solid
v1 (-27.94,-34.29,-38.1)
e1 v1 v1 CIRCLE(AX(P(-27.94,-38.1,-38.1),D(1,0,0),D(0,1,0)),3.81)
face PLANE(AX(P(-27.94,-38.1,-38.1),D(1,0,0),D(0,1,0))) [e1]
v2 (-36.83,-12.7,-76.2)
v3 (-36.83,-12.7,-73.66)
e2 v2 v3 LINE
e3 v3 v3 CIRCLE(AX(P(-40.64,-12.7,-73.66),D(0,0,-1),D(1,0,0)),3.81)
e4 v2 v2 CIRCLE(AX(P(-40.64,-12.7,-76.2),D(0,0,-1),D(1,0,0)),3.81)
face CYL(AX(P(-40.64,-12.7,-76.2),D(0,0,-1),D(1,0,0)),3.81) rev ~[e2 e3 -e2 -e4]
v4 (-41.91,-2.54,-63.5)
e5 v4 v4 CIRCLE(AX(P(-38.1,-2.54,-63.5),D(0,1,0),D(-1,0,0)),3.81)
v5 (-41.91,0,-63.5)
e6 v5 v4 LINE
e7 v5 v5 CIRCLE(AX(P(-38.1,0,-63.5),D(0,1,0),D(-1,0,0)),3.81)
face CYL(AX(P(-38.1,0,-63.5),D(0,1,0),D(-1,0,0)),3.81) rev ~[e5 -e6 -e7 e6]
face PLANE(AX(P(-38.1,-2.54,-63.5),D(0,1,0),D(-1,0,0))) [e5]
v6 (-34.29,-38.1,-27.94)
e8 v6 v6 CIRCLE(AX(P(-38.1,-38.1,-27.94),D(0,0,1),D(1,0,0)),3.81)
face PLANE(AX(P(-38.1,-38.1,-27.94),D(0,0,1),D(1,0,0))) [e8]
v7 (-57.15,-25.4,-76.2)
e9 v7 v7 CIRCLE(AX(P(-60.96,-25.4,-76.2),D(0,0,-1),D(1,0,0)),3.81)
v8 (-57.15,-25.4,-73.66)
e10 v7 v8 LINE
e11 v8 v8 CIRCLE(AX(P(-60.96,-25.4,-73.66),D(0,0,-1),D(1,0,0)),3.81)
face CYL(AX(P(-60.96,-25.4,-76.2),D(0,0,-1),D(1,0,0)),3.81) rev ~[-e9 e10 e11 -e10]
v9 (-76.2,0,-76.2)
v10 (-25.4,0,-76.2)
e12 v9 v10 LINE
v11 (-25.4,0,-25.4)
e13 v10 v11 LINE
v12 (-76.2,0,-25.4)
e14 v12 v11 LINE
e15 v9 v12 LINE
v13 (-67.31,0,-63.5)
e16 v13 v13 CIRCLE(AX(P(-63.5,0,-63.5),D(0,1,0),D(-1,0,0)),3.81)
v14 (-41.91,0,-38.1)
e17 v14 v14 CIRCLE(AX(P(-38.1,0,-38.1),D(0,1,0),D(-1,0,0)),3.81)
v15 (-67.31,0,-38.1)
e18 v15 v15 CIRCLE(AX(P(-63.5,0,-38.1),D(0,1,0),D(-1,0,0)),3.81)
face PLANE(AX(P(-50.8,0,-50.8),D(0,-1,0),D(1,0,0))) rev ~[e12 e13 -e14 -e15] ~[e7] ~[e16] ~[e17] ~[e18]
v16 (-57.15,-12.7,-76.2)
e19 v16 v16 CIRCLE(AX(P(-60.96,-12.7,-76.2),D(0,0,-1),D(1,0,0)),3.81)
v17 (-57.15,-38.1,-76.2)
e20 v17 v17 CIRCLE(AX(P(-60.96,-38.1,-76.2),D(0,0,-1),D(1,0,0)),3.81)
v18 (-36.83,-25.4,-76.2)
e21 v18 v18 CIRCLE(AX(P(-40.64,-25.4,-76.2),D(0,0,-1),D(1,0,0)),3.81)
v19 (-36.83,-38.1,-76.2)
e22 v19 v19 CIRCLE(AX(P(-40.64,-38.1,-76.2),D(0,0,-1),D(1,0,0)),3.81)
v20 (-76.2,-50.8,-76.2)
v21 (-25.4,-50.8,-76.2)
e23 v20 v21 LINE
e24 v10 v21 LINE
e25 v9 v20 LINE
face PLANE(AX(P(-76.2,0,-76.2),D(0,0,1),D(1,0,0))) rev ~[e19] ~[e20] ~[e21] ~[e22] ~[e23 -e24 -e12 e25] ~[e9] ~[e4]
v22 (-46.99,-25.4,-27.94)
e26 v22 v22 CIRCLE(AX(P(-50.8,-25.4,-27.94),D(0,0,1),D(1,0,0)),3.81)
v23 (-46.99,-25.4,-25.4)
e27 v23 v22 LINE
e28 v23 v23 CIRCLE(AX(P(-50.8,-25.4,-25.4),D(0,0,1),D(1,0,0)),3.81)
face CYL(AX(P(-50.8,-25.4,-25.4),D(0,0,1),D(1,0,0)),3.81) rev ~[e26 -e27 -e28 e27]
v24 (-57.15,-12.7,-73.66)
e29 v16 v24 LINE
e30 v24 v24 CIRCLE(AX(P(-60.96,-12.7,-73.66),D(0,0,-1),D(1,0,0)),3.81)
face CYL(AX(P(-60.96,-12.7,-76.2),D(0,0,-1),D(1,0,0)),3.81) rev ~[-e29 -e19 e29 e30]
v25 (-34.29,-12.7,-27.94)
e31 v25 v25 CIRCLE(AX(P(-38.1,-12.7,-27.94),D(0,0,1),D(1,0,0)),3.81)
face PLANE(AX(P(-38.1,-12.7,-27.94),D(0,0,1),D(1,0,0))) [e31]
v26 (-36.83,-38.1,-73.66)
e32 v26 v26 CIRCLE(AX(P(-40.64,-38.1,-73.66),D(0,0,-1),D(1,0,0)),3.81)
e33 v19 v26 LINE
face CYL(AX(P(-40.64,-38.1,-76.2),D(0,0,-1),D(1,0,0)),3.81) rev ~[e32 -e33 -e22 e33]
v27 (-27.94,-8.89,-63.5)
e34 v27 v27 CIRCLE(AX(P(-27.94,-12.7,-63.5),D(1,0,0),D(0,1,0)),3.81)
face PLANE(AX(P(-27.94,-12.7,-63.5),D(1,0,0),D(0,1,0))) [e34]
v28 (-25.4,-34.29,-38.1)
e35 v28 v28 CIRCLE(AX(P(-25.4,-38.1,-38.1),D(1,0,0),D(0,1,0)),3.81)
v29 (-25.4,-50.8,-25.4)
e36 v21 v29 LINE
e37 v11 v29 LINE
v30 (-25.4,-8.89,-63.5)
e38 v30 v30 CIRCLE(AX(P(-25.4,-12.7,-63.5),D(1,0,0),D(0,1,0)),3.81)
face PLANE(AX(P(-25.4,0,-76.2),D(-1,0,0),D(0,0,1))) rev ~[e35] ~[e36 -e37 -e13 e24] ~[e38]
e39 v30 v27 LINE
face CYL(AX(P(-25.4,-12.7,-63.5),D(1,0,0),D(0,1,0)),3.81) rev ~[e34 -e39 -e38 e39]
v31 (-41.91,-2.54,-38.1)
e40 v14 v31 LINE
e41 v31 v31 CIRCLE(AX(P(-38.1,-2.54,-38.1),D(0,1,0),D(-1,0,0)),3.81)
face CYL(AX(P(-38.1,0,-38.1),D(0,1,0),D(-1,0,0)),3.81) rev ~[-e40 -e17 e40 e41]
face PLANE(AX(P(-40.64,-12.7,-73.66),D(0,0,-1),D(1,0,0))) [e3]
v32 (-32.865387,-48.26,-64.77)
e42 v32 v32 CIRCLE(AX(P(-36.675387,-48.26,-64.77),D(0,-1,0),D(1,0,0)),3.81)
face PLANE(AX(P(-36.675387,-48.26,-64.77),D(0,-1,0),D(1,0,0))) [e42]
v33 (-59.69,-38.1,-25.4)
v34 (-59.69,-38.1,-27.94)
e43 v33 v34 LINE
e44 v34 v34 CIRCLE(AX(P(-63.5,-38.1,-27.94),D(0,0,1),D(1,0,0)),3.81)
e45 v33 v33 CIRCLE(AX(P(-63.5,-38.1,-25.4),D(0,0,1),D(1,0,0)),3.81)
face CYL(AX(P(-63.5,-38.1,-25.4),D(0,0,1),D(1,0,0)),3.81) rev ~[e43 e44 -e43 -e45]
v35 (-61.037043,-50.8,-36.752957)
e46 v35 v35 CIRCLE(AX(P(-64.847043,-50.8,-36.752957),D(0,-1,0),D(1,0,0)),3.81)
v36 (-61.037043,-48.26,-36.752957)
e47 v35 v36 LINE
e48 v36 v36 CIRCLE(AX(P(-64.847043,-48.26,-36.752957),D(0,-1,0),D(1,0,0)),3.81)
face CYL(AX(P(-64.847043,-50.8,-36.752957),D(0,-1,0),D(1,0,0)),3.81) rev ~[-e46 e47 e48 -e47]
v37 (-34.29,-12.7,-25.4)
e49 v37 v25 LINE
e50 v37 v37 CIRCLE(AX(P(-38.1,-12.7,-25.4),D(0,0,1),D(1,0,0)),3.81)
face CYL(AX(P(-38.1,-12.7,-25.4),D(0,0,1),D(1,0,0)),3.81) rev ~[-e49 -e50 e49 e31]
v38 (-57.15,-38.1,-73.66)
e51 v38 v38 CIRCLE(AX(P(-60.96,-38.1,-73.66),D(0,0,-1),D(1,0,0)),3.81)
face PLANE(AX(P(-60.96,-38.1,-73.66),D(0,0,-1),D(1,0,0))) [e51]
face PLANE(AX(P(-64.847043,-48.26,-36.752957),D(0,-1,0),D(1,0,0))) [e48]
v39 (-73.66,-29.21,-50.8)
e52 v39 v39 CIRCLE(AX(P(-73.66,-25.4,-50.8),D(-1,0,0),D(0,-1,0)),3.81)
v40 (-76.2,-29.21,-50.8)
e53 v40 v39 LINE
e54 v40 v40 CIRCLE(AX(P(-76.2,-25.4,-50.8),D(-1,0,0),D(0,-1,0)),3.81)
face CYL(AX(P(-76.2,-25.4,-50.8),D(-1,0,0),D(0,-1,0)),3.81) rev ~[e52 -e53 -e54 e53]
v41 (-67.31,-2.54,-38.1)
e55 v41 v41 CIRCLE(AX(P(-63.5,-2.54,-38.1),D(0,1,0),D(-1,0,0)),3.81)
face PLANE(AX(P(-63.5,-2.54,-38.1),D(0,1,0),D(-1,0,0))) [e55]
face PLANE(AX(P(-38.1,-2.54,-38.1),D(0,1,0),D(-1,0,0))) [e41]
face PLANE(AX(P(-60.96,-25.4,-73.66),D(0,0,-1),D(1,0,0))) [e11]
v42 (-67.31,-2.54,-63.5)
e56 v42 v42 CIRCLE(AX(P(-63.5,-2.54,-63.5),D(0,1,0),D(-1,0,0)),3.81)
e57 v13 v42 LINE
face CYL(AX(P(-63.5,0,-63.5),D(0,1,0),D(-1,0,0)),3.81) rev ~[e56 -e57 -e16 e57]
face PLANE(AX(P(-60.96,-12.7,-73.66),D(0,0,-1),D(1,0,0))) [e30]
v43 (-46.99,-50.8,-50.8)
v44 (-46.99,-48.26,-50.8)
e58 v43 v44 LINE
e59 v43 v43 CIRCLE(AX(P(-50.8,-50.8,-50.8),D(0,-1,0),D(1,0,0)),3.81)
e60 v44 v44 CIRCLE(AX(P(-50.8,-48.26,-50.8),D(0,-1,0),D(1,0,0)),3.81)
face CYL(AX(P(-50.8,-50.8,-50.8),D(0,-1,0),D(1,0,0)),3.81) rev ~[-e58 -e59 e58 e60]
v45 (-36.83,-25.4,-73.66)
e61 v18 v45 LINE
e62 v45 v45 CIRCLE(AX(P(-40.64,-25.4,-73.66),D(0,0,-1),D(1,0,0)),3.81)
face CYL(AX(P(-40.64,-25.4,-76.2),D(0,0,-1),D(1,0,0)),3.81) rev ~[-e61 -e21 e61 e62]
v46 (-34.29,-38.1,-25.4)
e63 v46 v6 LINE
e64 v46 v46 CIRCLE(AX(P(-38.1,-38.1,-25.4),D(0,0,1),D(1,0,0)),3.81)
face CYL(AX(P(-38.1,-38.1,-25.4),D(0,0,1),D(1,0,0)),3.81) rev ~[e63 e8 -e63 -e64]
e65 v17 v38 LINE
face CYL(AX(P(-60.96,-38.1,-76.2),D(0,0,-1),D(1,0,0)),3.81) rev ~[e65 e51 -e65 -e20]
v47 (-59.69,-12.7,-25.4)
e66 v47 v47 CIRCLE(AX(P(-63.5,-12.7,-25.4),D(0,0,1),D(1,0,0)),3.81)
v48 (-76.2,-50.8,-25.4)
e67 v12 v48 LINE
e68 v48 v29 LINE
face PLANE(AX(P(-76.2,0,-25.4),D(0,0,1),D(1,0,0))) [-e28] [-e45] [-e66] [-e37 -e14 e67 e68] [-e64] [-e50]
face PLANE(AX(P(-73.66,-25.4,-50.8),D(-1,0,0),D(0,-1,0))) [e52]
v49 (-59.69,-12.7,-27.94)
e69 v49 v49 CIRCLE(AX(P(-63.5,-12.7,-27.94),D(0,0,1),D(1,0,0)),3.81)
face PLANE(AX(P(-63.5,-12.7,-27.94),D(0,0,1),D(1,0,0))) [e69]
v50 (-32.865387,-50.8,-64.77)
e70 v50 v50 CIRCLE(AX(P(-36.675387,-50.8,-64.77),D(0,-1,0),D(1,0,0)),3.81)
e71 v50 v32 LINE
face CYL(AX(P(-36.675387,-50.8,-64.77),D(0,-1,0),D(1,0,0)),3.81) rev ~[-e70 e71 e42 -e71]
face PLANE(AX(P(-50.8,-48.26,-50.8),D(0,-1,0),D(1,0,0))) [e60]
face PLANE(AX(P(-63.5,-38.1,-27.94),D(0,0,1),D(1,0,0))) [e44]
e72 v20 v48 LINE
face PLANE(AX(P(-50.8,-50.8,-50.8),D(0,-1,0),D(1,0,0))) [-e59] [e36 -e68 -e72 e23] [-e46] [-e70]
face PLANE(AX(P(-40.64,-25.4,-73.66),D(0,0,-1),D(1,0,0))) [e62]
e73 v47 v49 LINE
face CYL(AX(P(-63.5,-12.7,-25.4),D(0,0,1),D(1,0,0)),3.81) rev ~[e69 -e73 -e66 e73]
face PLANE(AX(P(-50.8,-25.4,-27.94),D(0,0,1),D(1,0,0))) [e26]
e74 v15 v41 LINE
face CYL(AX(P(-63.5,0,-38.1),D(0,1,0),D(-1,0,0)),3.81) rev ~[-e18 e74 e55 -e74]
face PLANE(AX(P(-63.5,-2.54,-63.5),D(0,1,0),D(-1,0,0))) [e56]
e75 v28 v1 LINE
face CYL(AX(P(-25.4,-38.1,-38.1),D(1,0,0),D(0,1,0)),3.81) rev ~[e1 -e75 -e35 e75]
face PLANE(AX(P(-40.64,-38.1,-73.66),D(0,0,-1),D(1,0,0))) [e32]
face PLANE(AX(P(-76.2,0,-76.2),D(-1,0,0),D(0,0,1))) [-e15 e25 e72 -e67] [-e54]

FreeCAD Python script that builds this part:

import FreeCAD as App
import Part
import Sketcher

V = App.Vector
Q = App.Units.Quantity

doc = App.newDocument("Part")
body = doc.addObject("PartDesign::Body", "Body")

# Sketch on XZ plane
sketch1 = doc.addObject("Sketcher::SketchObject", "Sketch")
body.addObject(sketch1)
sketch1.AttachmentSupport = (doc.XZ_Plane, [""])
sketch1.MapMode = "FlatFace"
sketch1.addGeometry([
    Part.LineSegment(V(-76.2, -25.4, 0), V(-76.2, -76.2, 0)),
    Part.LineSegment(V(-76.2, -76.2, 0), V(-25.4, -76.2, 0)),
    Part.LineSegment(V(-25.4, -76.2, 0), V(-25.4, -25.4, 0)),
    Part.LineSegment(V(-25.4, -25.4, 0), V(-76.2, -25.4, 0)),
], False)
sketch1.addConstraint([
    Sketcher.Constraint("Coincident", 0, 2, 1, 1),
    Sketcher.Constraint("Coincident", 1, 2, 2, 1),
    Sketcher.Constraint("Coincident", 2, 2, 3, 1),
    Sketcher.Constraint("Coincident", 3, 2, 0, 1),
    Sketcher.Constraint("Vertical", 0),
    Sketcher.Constraint("Horizontal", 1),
    Sketcher.Constraint("Vertical", 2),
    Sketcher.Constraint("Horizontal", 3),
    Sketcher.Constraint("Equal", 3, 0),
    Sketcher.Constraint("DistanceX", 1, 1, 1, 2, Q("2 in")),
    Sketcher.Constraint("DistanceX", 0, 2, -1, 1, Q("3 in")),
    Sketcher.Constraint("DistanceY", 0, 2, -1, 1, Q("3 in")),
])
pad1 = doc.addObject("PartDesign::Pad", "Pad")
body.addObject(pad1)
pad1.Profile = sketch1
pad1.Length = Q("2 in")

# Sketch on YZ plane
sketch2 = doc.addObject("Sketcher::SketchObject", "Sketch001")
body.addObject(sketch2)
sketch2.AttachmentSupport = (doc.YZ_Plane, [""])
sketch2.MapMode = "FlatFace"
sketch2.AttachmentOffset = App.Placement(V(0, 0, -3 * 25.4), App.Rotation())
sketch2.addGeometry(Part.Circle(V(-25.4, -50.8, 0), V(0, 0, 1), 3.81), False)
sketch2.addConstraint([
    Sketcher.Constraint("Diameter", 0, Q("0.3 in")),
    Sketcher.Constraint("DistanceX", 0, 3, -1, 1, Q("1 in")),
    Sketcher.Constraint("DistanceY", 0, 3, -1, 1, Q("2 in")),
])
pocket1 = doc.addObject("PartDesign::Pocket", "Pocket")
body.addObject(pocket1)
pocket1.Profile = sketch2
pocket1.Length = Q("0.1 in")
pocket1.Reversed = True

# Sketch on YZ plane
sketch3 = doc.addObject("Sketcher::SketchObject", "Sketch002")
body.addObject(sketch3)
sketch3.AttachmentSupport = (doc.YZ_Plane, [""])
sketch3.MapMode = "FlatFace"
sketch3.AttachmentOffset = App.Placement(V(0, 0, -1 * 25.4), App.Rotation())
sketch3.addGeometry([
    Part.Circle(V(-12.7, -63.5, 0), V(0, 0, 1), 3.81),
    Part.Circle(V(-38.1, -38.1, 0), V(0, 0, 1), 3.81),
], False)
sketch3.addConstraint([
    Sketcher.Constraint("Equal", 0, 1),
    Sketcher.Constraint("Diameter", 0, Q("0.3 in")),
    Sketcher.Constraint("DistanceX", 1, 3, 0, 3, Q("1 in")),
    Sketcher.Constraint("DistanceY", 0, 3, 1, 3, Q("1 in")),
    Sketcher.Constraint("DistanceX", 0, 3, -1, 1, Q("0.5 in")),
    Sketcher.Constraint("DistanceY", 0, 3, -1, 1, Q("2.5 in")),
])
pocket2 = doc.addObject("PartDesign::Pocket", "Pocket001")
body.addObject(pocket2)
pocket2.Profile = sketch3
pocket2.Length = Q("0.1 in")

# Sketch on XZ plane
sketch4 = doc.addObject("Sketcher::SketchObject", "Sketch003")
body.addObject(sketch4)
sketch4.AttachmentSupport = (doc.XZ_Plane, [""])
sketch4.MapMode = "FlatFace"
sketch4.AttachmentOffset = App.Placement(V(0, 0, 2 * 25.4), App.Rotation())
sketch4.addGeometry([
    Part.Circle(V(-50.8, -50.8, 0), V(0, 0, 1), 3.81),
    Part.Circle(V(-64.847043, -36.752957, 0), V(0, 0, 1), 3.81),
    Part.Circle(V(-36.675387, -64.77, 0), V(0, 0, 1), 3.81),
], False)
sketch4.addConstraint([
    Sketcher.Constraint("Equal", 0, 1),
    Sketcher.Constraint("Equal", 1, 2),
    Sketcher.Constraint("Diameter", 0, Q("0.3 in")),
    Sketcher.Constraint("DistanceX", 0, 3, -1, 1, Q("2 in")),
    Sketcher.Constraint("DistanceY", 0, 3, -1, 1, Q("2 in")),
    Sketcher.Constraint("DistanceY", 2, 3, -1, 1, Q("2.55 in")),
    Sketcher.Constraint("DistanceX", 1, 3, -1, 1, 64.847043),
    Sketcher.Constraint("DistanceY", 1, 3, -1, 1, 36.752957),
    Sketcher.Constraint("DistanceX", 2, 3, -1, 1, 36.675387),
])
pocket3 = doc.addObject("PartDesign::Pocket", "Pocket002")
body.addObject(pocket3)
pocket3.Profile = sketch4
pocket3.Length = Q("0.1 in")

# Sketch on XZ plane
sketch5 = doc.addObject("Sketcher::SketchObject", "Sketch004")
body.addObject(sketch5)
sketch5.AttachmentSupport = (doc.XZ_Plane, [""])
sketch5.MapMode = "FlatFace"
sketch5.addGeometry([
    Part.Circle(V(-38.1, -38.1, 0), V(0, 0, 1), 3.81),
    Part.Circle(V(-63.5, -38.1, 0), V(0, 0, 1), 3.81),
    Part.Circle(V(-38.1, -63.5, 0), V(0, 0, 1), 3.81),
    Part.Circle(V(-63.5, -63.5, 0), V(0, 0, 1), 3.81),
], False)
sketch5.addConstraint([
    Sketcher.Constraint("Equal", 0, 1),
    Sketcher.Constraint("Equal", 1, 2),
    Sketcher.Constraint("Equal", 2, 3),
    Sketcher.Constraint("Horizontal", 0, 3, 1, 3),
    Sketcher.Constraint("Horizontal", 2, 3, 3, 3),
    Sketcher.Constraint("Vertical", 0, 3, 2, 3),
    Sketcher.Constraint("Vertical", 1, 3, 3, 3),
    Sketcher.Constraint("Diameter", 0, Q("0.3 in")),
    Sketcher.Constraint("DistanceX", 1, 3, 0, 3, Q("1 in")),
    Sketcher.Constraint("DistanceY", 2, 3, 0, 3, Q("1 in")),
    Sketcher.Constraint("DistanceX", 0, 3, -1, 1, Q("1.5 in")),
    Sketcher.Constraint("DistanceY", 0, 3, -1, 1, Q("1.5 in")),
])
pocket4 = doc.addObject("PartDesign::Pocket", "Pocket003")
body.addObject(pocket4)
pocket4.Profile = sketch5
pocket4.Length = Q("0.1 in")
pocket4.Reversed = True

# Sketch on XY plane
sketch6 = doc.addObject("Sketcher::SketchObject", "Sketch005")
body.addObject(sketch6)
sketch6.AttachmentSupport = (doc.XY_Plane, [""])
sketch6.MapMode = "FlatFace"
sketch6.AttachmentOffset = App.Placement(V(0, 0, -1 * 25.4), App.Rotation())
sketch6.addGeometry([
    Part.Circle(V(-63.5, -12.7, 0), V(0, 0, 1), 3.81),  # 0
    Part.Circle(V(-38.1, -12.7, 0), V(0, 0, 1), 3.81),  # 1
    Part.Circle(V(-63.5, -38.1, 0), V(0, 0, 1), 3.81),  # 2
    Part.Circle(V(-38.1, -38.1, 0), V(0, 0, 1), 3.81),  # 3
    Part.Circle(V(-50.8, -25.4, 0), V(0, 0, 1), 3.81),  # 4
], False)
sketch6.addConstraint([
    Sketcher.Constraint("Equal", 0, 1),
    Sketcher.Constraint("Equal", 1, 2),
    Sketcher.Constraint("Equal", 2, 3),
    Sketcher.Constraint("Equal", 3, 4),
    Sketcher.Constraint("Horizontal", 0, 3, 1, 3),
    Sketcher.Constraint("Horizontal", 2, 3, 3, 3),
    Sketcher.Constraint("Vertical", 0, 3, 2, 3),
    Sketcher.Constraint("Vertical", 1, 3, 3, 3),
    Sketcher.Constraint("Diameter", 0, Q("0.3 in")),
    Sketcher.Constraint("DistanceX", 4, 3, -1, 1, Q("2 in")),
    Sketcher.Constraint("DistanceY", 4, 3, -1, 1, Q("1 in")),
    Sketcher.Constraint("DistanceX", 0, 3, 1, 3, Q("1 in")),
    Sketcher.Constraint("DistanceY", 2, 3, 0, 3, Q("1 in")),
    Sketcher.Constraint("DistanceX", 0, 3, -1, 1, Q("2.5 in")),
    Sketcher.Constraint("DistanceY", 0, 3, -1, 1, Q("0.5 in")),
])
pocket5 = doc.addObject("PartDesign::Pocket", "Pocket004")
body.addObject(pocket5)
pocket5.Profile = sketch6
pocket5.Length = Q("0.1 in")

# Sketch on XY plane
sketch7 = doc.addObject("Sketcher::SketchObject", "Sketch006")
body.addObject(sketch7)
sketch7.AttachmentSupport = (doc.XY_Plane, [""])
sketch7.MapMode = "FlatFace"
sketch7.AttachmentOffset = App.Placement(V(0, 0, -3 * 25.4), App.Rotation())
sketch7.addGeometry([
    Part.Circle(V(-60.96, -25.4, 0), V(0, 0, 1), 3.81),  # 0
    Part.Circle(V(-60.96, -38.1, 0), V(0, 0, 1), 3.81),  # 1
    Part.Circle(V(-60.96, -12.7, 0), V(0, 0, 1), 3.81),  # 2
    Part.Circle(V(-40.64, -12.7, 0), V(0, 0, 1), 3.81),  # 3
    Part.Circle(V(-40.64, -25.4, 0), V(0, 0, 1), 3.81),  # 4
    Part.Circle(V(-40.64, -38.1, 0), V(0, 0, 1), 3.81),  # 5
], False)
sketch7.addConstraint([
    Sketcher.Constraint("Equal", 0, 1),
    Sketcher.Constraint("Equal", 1, 2),
    Sketcher.Constraint("Equal", 2, 3),
    Sketcher.Constraint("Equal", 3, 4),
    Sketcher.Constraint("Equal", 4, 5),
    Sketcher.Constraint("Horizontal", 2, 3, 3, 3),
    Sketcher.Constraint("Horizontal", 0, 3, 4, 3),
    Sketcher.Constraint("Horizontal", 1, 3, 5, 3),
    Sketcher.Constraint("Vertical", 0, 3, 1, 3),
    Sketcher.Constraint("Vertical", 1, 3, 2, 3),
    Sketcher.Constraint("Vertical", 3, 3, 4, 3),
    Sketcher.Constraint("Vertical", 4, 3, 5, 3),
    Sketcher.Constraint("Diameter", 0, Q("0.3 in")),
    Sketcher.Constraint("DistanceY", 0, 3, -1, 1, Q("1 in")),
    Sketcher.Constraint("DistanceY", 1, 3, 2, 3, Q("1 in")),
    Sketcher.Constraint("DistanceX", 0, 3, -1, 1, Q("2.4 in")),
    Sketcher.Constraint("DistanceY", 1, 3, -1, 1, Q("1.5 in")),
    Sketcher.Constraint("DistanceX", 3, 3, -1, 1, Q("1.6 in")),
])
pocket6 = doc.addObject("PartDesign::Pocket", "Pocket005")
body.addObject(pocket6)
pocket6.Profile = sketch7
pocket6.Length = Q("0.1 in")
pocket6.Reversed = True

doc.recompute()
